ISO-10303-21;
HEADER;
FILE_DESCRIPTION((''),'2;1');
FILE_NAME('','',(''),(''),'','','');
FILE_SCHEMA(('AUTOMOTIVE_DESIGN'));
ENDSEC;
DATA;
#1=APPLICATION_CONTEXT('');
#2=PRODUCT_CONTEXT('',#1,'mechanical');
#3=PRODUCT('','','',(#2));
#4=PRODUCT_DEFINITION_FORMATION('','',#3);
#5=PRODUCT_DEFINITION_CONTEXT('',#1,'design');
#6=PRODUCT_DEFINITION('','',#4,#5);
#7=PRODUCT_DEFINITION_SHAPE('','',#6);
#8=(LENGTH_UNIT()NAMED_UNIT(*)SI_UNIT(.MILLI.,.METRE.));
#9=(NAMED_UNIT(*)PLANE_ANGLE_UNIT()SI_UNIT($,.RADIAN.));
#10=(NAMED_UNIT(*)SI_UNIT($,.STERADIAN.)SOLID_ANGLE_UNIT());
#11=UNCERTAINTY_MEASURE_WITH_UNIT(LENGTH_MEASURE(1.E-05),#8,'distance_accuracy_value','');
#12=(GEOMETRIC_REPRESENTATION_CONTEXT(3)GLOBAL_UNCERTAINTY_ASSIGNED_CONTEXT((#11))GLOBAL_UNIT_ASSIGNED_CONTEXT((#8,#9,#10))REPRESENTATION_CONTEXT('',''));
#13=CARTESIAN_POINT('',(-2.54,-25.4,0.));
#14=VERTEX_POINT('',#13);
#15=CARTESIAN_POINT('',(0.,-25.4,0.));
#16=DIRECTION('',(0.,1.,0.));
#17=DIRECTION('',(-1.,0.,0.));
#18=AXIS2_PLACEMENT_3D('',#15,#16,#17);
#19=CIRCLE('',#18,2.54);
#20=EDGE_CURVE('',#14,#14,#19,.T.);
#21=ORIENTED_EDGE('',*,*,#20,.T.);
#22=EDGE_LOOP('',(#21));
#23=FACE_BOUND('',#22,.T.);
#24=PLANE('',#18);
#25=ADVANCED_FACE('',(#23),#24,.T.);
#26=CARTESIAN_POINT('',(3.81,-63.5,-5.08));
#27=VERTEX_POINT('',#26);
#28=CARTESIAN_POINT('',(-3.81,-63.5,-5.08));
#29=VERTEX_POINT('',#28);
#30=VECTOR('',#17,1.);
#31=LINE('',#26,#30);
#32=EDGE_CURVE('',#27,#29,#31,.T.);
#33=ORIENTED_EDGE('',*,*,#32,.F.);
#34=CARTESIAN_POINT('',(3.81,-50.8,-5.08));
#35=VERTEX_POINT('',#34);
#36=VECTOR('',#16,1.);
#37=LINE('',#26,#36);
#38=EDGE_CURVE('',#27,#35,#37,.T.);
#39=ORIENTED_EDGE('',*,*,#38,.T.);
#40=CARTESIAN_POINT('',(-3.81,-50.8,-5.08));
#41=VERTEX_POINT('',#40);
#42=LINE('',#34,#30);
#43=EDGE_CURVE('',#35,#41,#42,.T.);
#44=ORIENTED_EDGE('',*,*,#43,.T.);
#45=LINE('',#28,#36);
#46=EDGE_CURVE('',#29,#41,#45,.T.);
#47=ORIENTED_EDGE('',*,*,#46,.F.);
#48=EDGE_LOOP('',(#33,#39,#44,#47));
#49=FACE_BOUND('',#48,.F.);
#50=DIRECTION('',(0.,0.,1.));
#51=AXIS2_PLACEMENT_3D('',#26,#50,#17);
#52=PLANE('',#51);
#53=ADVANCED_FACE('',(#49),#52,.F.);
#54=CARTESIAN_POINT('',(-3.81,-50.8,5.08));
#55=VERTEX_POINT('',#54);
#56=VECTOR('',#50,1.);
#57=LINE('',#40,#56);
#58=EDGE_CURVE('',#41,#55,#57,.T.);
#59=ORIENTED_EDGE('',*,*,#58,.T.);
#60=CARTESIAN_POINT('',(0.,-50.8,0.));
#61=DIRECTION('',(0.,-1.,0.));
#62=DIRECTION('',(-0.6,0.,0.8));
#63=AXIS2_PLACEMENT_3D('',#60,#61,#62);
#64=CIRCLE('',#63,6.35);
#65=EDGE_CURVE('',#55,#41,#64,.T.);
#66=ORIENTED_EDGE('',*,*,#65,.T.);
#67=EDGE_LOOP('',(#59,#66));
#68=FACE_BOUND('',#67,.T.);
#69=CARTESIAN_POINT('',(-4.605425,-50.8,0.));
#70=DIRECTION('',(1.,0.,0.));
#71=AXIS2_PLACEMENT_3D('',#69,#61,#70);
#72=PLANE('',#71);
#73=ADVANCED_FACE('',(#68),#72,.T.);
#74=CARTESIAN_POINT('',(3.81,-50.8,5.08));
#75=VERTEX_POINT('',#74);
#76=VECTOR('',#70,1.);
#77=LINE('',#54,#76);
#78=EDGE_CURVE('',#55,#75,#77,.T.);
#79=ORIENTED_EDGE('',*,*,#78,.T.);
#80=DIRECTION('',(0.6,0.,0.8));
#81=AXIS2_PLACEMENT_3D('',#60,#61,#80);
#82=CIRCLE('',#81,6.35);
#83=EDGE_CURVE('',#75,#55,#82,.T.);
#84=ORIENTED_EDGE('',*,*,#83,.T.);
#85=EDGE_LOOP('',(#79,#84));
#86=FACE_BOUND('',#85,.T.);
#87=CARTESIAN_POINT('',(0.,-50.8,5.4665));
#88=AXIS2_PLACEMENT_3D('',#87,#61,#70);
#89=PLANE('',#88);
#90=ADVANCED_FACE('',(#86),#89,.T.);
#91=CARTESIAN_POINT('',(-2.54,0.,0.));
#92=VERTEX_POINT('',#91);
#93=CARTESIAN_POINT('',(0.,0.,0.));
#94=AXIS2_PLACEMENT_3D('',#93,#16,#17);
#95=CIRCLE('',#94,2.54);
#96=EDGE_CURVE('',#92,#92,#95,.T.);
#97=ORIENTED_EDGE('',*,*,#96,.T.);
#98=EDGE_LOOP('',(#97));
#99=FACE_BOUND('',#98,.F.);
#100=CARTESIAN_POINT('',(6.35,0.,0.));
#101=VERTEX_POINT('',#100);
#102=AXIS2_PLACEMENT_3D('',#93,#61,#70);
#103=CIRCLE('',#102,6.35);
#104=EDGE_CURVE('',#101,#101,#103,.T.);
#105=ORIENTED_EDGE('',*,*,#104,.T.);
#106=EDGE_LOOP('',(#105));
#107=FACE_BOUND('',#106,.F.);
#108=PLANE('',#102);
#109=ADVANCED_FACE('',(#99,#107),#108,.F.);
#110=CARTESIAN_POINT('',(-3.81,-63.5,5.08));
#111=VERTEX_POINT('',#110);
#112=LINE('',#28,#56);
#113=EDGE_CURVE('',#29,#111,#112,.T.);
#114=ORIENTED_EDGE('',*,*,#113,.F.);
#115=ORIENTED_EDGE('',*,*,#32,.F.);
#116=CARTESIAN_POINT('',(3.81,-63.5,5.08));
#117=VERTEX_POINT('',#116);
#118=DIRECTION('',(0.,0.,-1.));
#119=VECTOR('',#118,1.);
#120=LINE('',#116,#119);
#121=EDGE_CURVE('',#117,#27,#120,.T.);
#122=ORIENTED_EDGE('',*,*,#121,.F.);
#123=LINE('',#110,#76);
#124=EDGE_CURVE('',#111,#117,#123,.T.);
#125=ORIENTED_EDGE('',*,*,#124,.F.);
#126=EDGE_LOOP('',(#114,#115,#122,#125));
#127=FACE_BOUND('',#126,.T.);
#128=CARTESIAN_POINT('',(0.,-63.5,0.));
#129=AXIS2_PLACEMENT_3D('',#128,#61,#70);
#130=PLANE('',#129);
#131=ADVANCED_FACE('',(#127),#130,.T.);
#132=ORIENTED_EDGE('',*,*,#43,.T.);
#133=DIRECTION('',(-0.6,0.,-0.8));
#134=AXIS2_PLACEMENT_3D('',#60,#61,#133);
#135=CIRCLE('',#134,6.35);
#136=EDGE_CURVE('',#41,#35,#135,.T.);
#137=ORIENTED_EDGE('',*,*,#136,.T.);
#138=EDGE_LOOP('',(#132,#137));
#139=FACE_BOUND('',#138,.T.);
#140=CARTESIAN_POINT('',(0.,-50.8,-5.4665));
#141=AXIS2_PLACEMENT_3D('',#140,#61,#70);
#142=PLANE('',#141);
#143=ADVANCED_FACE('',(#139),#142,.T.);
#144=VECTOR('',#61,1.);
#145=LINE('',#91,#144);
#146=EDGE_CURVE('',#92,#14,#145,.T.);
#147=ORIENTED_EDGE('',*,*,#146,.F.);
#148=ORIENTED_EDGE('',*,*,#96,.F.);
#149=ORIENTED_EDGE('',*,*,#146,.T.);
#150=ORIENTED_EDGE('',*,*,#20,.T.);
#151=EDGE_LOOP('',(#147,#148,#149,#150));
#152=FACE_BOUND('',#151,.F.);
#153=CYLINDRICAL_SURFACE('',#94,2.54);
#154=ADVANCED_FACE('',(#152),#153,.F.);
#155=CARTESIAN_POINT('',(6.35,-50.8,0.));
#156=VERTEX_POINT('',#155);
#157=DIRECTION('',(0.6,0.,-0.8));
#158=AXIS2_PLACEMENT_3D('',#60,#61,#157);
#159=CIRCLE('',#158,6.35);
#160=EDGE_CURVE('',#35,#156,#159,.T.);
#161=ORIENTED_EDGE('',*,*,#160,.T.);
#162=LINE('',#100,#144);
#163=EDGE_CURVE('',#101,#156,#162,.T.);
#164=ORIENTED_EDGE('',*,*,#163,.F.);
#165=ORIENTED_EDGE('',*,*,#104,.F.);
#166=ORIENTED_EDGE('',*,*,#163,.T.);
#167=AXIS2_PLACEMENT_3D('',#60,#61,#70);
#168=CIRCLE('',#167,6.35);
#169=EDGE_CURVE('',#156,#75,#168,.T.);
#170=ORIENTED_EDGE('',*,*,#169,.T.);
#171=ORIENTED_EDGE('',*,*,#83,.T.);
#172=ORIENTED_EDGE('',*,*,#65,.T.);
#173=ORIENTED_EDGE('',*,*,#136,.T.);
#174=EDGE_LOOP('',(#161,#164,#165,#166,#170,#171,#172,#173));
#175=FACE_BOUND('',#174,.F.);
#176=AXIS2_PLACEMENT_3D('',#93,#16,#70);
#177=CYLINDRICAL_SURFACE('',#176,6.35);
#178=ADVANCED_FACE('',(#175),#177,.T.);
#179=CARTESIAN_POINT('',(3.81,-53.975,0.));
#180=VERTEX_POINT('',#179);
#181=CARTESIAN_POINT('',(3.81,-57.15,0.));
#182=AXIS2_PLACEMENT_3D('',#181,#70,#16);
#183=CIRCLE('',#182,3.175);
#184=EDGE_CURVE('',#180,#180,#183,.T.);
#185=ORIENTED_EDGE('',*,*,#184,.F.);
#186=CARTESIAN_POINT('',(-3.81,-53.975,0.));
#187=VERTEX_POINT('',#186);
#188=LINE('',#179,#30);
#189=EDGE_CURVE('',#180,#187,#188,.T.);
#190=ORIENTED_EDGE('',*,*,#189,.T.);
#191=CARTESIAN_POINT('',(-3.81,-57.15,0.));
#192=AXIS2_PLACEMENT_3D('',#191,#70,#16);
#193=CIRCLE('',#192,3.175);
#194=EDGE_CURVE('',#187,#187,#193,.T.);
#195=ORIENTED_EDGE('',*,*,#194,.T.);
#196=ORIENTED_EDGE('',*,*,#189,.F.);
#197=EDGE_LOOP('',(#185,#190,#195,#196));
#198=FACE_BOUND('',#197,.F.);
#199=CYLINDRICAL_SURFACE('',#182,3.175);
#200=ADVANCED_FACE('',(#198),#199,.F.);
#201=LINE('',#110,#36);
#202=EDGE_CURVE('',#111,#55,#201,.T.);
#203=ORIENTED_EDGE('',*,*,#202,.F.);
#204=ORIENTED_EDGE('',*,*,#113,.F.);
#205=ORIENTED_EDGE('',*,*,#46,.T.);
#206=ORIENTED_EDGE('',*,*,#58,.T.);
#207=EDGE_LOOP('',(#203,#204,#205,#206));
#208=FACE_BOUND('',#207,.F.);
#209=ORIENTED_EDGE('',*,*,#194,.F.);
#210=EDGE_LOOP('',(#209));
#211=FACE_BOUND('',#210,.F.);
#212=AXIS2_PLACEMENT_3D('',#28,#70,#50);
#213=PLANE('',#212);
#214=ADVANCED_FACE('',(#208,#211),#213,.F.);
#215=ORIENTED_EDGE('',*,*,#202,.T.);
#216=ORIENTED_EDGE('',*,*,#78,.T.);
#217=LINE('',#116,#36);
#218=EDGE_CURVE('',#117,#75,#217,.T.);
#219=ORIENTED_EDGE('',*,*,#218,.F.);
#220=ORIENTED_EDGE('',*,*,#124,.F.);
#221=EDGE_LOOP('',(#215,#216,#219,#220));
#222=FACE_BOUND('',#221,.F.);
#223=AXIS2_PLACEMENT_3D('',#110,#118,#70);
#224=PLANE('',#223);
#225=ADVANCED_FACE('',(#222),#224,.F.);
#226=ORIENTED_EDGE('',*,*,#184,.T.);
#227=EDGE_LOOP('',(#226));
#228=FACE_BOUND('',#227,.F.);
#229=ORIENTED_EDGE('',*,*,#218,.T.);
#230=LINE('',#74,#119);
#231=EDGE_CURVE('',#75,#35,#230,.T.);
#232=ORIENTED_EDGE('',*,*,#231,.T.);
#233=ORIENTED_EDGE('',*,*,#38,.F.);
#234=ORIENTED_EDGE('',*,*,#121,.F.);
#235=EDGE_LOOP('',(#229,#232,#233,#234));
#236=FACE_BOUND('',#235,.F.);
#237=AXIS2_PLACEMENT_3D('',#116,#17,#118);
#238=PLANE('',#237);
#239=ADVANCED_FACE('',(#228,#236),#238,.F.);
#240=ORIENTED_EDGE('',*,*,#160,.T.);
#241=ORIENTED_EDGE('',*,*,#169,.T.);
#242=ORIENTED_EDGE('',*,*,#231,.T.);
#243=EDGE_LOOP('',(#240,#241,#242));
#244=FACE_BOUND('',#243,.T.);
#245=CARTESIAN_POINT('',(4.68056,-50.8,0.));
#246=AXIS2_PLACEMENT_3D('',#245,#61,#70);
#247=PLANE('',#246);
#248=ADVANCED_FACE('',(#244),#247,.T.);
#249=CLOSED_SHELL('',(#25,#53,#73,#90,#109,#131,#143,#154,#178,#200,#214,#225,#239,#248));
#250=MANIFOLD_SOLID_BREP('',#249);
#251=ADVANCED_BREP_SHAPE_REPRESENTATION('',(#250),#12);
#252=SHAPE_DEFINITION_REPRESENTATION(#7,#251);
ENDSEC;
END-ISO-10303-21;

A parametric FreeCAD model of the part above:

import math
import FreeCAD as App
import Part
import Sketcher
Q = App.Units.Quantity

doc = App.newDocument("Part")
body = doc.addObject("PartDesign::Body", "Body")

# Sketch on XZ plane
sketch1 = body.newObject("Sketcher::SketchObject", "Sketch")
sketch1.AttachmentSupport = (doc.getObject("XZ_Plane"), [""])
sketch1.MapMode = "FlatFace"
sketch1.addGeometry(Part.Circle(App.Vector(0, 0, 0), App.Vector(0, 0, 1), 6), False)
sketch1.addConstraint(Sketcher.Constraint("Coincident", 0, 3, -1, 1))
sketch1.addConstraint(Sketcher.Constraint("Diameter", 0, Q("0.5 in")))
pad1 = body.newObject("PartDesign::Pad", "Pad")
pad1.Profile = sketch1
pad1.Length = Q("2.5 in")

# Sketch on XZ plane
sketch2 = body.newObject("Sketcher::SketchObject", "Sketch001")
sketch2.AttachmentSupport = (doc.getObject("XZ_Plane"), [""])
sketch2.MapMode = "FlatFace"
sketch2.AttachmentOffset = App.Placement(App.Vector(0, 0, 2.5 * 25.4), App.Rotation())
sketch2.addGeometry(Part.ArcOfCircle(Part.Circle(App.Vector(0, 0, 0), App.Vector(0, 0, 1), 6), math.radians(53), math.radians(127)), False)
sketch2.addGeometry(Part.LineSegment(App.Vector(-4, 5, 0), App.Vector(4, 5, 0)), False)
sketch2.addGeometry(Part.ArcOfCircle(Part.Circle(App.Vector(0, 0, 0), App.Vector(0, 0, 1), 6), math.radians(-127), math.radians(-53)), False)
sketch2.addGeometry(Part.LineSegment(App.Vector(4, -5, 0), App.Vector(-4, -5, 0)), False)
sketch2.addGeometry(Part.ArcOfCircle(Part.Circle(App.Vector(0, 0, 0), App.Vector(0, 0, 1), 6), math.radians(-53), math.radians(0)), False)
sketch2.addGeometry(Part.ArcOfCircle(Part.Circle(App.Vector(0, 0, 0), App.Vector(0, 0, 1), 6), math.radians(0), math.radians(53)), False)
sketch2.addGeometry(Part.LineSegment(App.Vector(4, 5, 0), App.Vector(4, -5, 0)), False)
sketch2.addGeometry(Part.LineSegment(App.Vector(-4, -5, 0), App.Vector(-4, 5, 0)), False)
sketch2.addGeometry(Part.ArcOfCircle(Part.Circle(App.Vector(0, 0, 0), App.Vector(0, 0, 1), 6), math.radians(127), math.radians(233)), False)
sketch2.addConstraint(Sketcher.Constraint("Coincident", 0, 1, 1, 2))
sketch2.addConstraint(Sketcher.Constraint("Coincident", 1, 1, 0, 2))
sketch2.addConstraint(Sketcher.Constraint("Coincident", 2, 1, 3, 2))
sketch2.addConstraint(Sketcher.Constraint("Coincident", 3, 1, 2, 2))
sketch2.addConstraint(Sketcher.Constraint("Tangent", 4, 2, 5, 1))
sketch2.addConstraint(Sketcher.Constraint("Coincident", 5, 2, 6, 1))
sketch2.addConstraint(Sketcher.Constraint("Coincident", 6, 2, 4, 1))
sketch2.addConstraint(Sketcher.Constraint("Coincident", 7, 1, 8, 2))
sketch2.addConstraint(Sketcher.Constraint("Coincident", 8, 1, 7, 2))
sketch2.addConstraint(Sketcher.Constraint("Horizontal", 1))
sketch2.addConstraint(Sketcher.Constraint("Horizontal", 3))
sketch2.addConstraint(Sketcher.Constraint("Vertical", 6))
sketch2.addConstraint(Sketcher.Constraint("Vertical", 7))
sketch2.addConstraint(Sketcher.Constraint("Coincident", 0, 3, -1, 1))
sketch2.addConstraint(Sketcher.Constraint("Coincident", 2, 3, -1, 1))
sketch2.addConstraint(Sketcher.Constraint("Coincident", 4, 3, -1, 1))
sketch2.addConstraint(Sketcher.Constraint("Coincident", 8, 3, -1, 1))
sketch2.addConstraint(Sketcher.Constraint("Coincident", 5, 2, 0, 1))
sketch2.addConstraint(Sketcher.Constraint("Coincident", 6, 2, 3, 1))
sketch2.addConstraint(Sketcher.Constraint("Coincident", 7, 1, 2, 1))
sketch2.addConstraint(Sketcher.Constraint("Equal", 0, 2))
sketch2.addConstraint(Sketcher.Constraint("PointOnObject", 4, 2, -1))
sketch2.addConstraint(Sketcher.Constraint("Radius", 0, Q("0.25 in")))
sketch2.addConstraint(Sketcher.Constraint("DistanceX", 1, 1, 1, 2, Q("0.3 in")))
pocket1 = body.newObject("PartDesign::Pocket", "Pocket")
pocket1.Profile = sketch2
pocket1.Length = Q("0.5 in")

# Sketch on YZ plane
sketch3 = body.newObject("Sketcher::SketchObject", "Sketch002")
sketch3.AttachmentSupport = (doc.getObject("YZ_Plane"), [""])
sketch3.MapMode = "FlatFace"
sketch3.AttachmentOffset = App.Placement(App.Vector(0, 0, 0.15 * 25.4), App.Rotation())
sketch3.addGeometry(Part.Circle(App.Vector(-57.1, 0, 0), App.Vector(0, 0, 1), 3.2), False)
sketch3.addConstraint(Sketcher.Constraint("PointOnObject", 0, 3, -1))
sketch3.addConstraint(Sketcher.Constraint("Diameter", 0, Q("0.25 in")))
sketch3.addConstraint(Sketcher.Constraint("DistanceX", 0, 3, -1, 1, Q("2.25 in")))
pocket2 = body.newObject("PartDesign::Pocket", "Pocket001")
pocket2.Profile = sketch3
pocket2.Length = Q("1 in")

# Sketch on XZ plane
sketch4 = body.newObject("Sketcher::SketchObject", "Sketch003")
sketch4.AttachmentSupport = (doc.getObject("XZ_Plane"), [""])
sketch4.MapMode = "FlatFace"
sketch4.addGeometry(Part.Circle(App.Vector(0, 0, 0), App.Vector(0, 0, 1), 2.5), False)
sketch4.addConstraint(Sketcher.Constraint("Coincident", 0, 3, -1, 1))
sketch4.addConstraint(Sketcher.Constraint("Diameter", 0, Q("0.2 in")))
pocket3 = body.newObject("PartDesign::Pocket", "Pocket002")
pocket3.Profile = sketch4
pocket3.Length = Q("1 in")
pocket3.Reversed = True

doc.recompute()
